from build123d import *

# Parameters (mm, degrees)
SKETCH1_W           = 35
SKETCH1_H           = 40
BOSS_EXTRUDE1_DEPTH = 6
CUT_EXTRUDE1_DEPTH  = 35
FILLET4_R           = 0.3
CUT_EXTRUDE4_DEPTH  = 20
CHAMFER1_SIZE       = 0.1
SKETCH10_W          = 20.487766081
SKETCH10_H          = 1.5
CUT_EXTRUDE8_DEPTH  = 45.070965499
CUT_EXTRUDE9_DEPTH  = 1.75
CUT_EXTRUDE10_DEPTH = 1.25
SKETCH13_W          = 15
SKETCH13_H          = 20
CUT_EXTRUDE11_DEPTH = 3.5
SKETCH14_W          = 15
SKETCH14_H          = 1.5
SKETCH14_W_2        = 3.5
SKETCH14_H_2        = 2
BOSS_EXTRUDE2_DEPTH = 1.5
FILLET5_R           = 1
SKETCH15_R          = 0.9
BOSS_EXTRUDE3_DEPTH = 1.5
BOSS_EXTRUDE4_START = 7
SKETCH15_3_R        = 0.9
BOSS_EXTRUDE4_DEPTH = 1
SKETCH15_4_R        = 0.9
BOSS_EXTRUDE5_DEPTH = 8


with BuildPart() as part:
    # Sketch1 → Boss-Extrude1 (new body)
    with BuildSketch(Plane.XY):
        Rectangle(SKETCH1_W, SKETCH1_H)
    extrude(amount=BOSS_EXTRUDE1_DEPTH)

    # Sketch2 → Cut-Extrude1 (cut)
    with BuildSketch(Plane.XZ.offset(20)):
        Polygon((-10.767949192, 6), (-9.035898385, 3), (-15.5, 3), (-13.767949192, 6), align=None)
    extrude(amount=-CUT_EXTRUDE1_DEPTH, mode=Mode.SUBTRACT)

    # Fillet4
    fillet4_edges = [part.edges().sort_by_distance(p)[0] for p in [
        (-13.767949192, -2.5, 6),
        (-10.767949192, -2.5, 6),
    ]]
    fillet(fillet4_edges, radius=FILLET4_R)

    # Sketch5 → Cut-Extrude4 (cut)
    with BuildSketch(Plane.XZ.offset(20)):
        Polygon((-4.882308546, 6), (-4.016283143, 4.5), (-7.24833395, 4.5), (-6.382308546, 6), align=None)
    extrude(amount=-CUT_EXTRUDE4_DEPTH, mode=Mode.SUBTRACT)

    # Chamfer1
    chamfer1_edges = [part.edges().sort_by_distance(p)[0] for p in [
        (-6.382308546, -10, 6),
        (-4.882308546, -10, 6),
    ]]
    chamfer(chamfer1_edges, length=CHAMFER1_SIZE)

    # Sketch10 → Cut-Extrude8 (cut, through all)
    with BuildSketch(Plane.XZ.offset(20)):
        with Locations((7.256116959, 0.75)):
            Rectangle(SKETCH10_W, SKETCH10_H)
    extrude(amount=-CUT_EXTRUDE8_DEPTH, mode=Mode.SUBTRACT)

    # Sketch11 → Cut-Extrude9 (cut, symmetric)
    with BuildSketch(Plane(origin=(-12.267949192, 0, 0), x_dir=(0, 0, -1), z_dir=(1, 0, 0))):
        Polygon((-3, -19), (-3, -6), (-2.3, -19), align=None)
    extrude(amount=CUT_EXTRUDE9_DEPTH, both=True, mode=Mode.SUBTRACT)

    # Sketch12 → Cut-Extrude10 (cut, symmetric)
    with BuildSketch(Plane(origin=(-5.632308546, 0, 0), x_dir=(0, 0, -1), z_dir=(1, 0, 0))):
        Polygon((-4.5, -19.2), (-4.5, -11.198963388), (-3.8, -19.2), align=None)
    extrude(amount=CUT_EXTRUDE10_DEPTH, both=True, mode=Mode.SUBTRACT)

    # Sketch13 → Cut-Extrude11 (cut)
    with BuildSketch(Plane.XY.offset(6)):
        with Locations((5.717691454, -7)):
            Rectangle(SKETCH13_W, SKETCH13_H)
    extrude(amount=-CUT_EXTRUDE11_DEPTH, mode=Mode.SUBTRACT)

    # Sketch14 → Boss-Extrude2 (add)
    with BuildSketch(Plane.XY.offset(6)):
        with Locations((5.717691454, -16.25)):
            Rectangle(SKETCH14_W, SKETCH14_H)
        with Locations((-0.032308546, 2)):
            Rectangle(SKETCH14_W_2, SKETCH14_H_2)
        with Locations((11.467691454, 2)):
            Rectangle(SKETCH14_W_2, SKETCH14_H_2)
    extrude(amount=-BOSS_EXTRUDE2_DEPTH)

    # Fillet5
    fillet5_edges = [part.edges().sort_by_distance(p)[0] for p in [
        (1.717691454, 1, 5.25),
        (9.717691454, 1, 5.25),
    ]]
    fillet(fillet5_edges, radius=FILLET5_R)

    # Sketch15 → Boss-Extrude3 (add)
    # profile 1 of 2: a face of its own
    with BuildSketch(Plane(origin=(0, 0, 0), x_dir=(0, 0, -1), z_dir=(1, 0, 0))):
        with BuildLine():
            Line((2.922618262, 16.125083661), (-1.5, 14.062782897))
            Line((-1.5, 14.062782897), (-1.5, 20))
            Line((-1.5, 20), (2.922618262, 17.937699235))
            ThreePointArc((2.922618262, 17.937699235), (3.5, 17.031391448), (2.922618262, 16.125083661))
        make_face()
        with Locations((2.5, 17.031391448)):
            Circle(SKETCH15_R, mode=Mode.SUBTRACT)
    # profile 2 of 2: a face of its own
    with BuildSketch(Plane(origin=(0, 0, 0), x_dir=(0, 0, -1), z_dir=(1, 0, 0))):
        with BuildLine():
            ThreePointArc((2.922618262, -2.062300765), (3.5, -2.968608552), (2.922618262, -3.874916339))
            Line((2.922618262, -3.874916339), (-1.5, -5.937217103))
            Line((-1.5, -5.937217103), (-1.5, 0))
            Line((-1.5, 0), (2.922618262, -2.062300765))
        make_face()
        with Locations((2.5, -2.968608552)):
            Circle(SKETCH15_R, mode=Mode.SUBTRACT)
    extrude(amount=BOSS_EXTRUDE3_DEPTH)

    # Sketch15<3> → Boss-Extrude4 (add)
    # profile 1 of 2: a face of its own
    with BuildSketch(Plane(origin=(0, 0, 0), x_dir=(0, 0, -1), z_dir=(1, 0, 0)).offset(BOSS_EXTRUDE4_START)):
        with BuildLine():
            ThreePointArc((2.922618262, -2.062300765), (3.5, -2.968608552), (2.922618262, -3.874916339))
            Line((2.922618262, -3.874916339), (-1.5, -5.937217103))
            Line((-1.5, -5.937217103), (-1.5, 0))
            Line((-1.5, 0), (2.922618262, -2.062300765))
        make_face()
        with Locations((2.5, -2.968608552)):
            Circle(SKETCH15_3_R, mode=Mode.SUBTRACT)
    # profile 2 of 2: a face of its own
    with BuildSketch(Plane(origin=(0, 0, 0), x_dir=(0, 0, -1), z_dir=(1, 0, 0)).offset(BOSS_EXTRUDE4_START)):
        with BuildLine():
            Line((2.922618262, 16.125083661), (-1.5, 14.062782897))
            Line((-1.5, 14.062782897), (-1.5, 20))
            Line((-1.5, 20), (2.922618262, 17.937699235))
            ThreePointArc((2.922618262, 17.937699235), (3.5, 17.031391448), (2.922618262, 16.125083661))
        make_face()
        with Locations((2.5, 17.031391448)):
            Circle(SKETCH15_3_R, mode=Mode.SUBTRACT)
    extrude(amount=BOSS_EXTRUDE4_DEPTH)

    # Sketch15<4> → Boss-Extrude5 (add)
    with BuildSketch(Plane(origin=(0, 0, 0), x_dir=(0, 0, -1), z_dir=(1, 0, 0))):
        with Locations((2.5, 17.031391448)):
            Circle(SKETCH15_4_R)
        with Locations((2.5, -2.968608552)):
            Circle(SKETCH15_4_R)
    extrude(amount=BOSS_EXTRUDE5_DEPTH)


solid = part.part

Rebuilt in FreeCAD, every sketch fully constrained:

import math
import FreeCAD as App
import Part
import Sketcher

V = App.Vector
Q = App.Units.Quantity


def edges_at(feature, points):
    """Names of the edges that pass closest to the given points."""
    edges = feature.Shape.Edges
    near = lambda p: min(range(len(edges)), key=lambda i: edges[i].distToShape(Part.Vertex(*p))[0])
    return sorted({f"Edge{near(p) + 1}" for p in points})


def add_polygon(sketch, points):
    """Adds a closed chain of lines whose ends are joined by coincident constraints."""
    first, n = sketch.GeometryCount, len(points)
    for a, b in zip(points, points[1:] + points[:1]):
        sketch.addGeometry(Part.LineSegment(App.Vector(*a, 0), App.Vector(*b, 0)), False)
    for i in range(n):
        sketch.addConstraint(Sketcher.Constraint("Coincident", first + i, 2, first + (i + 1) % n, 1))

doc = App.newDocument("Part")
body = doc.addObject("PartDesign::Body", "Body")

sketch1 = doc.addObject("Sketcher::SketchObject", "Sketch")
body.addObject(sketch1)
sketch1.AttachmentSupport = (doc.XY_Plane, [""])
sketch1.MapMode = "FlatFace"
add_polygon(sketch1, [(-18, 20), (-18, -20), (18, -20), (18, 20)])
sketch1.addConstraint(Sketcher.Constraint("Vertical", 0))
sketch1.addConstraint(Sketcher.Constraint("Horizontal", 1))
sketch1.addConstraint(Sketcher.Constraint("Vertical", 2))
sketch1.addConstraint(Sketcher.Constraint("Horizontal", 3))
sketch1.addConstraint(Sketcher.Constraint("Symmetric", 0, 2, 2, 2, -1, 1))
sketch1.addConstraint(Sketcher.Constraint("DistanceX", 1, 1, 1, 2, Q("35 mm")))
sketch1.addConstraint(Sketcher.Constraint("DistanceY", 0, 2, 0, 1, Q("40 mm")))
pad1 = doc.addObject("PartDesign::Pad", "Pad")
body.addObject(pad1)
pad1.Profile = sketch1
pad1.Length = 6

sketch2 = doc.addObject("Sketcher::SketchObject", "Sketch001")
body.addObject(sketch2)
sketch2.AttachmentSupport = (doc.XZ_Plane, [""])
sketch2.MapMode = "FlatFace"
sketch2.AttachmentOffset = App.Placement(V(0, 0, 20), App.Rotation())
add_polygon(sketch2, [(-9, 3), (-10.8, 6), (-13.8, 6), (-15.5, 3)])
sketch2.addConstraint(Sketcher.Constraint("Horizontal", 1))
sketch2.addConstraint(Sketcher.Constraint("Horizontal", 3))
sketch2.addConstraint(Sketcher.Constraint("Equal", 0, 2))
sketch2.addConstraint(Sketcher.Constraint("DistanceX", 1, 2, 1, 1, Q("3 mm")))
sketch2.addConstraint(Sketcher.Constraint("Angle", 0, Q("120 deg")))
sketch2.addConstraint(Sketcher.Constraint("DistanceY", -1, 1, 0, 2, Q("6 mm")))
sketch2.addConstraint(Sketcher.Constraint("DistanceY", -1, 1, 2, 2, Q("3 mm")))
sketch2.addConstraint(Sketcher.Constraint("DistanceX", 2, 2, -1, 1, Q("15.5 mm")))
pocket1 = doc.addObject("PartDesign::Pocket", "Pocket")
body.addObject(pocket1)
pocket1.Profile = sketch2
pocket1.Length = 35
doc.recompute()

fillet = doc.addObject("PartDesign::Fillet", "Fillet")
body.addObject(fillet)
fillet.Base = (pocket1, edges_at(pocket1, [(-13.768, -2.5, 6), (-10.768, -2.5, 6)]))
fillet.Radius = 0.3

sketch3 = doc.addObject("Sketcher::SketchObject", "Sketch002")
body.addObject(sketch3)
sketch3.AttachmentSupport = (doc.XZ_Plane, [""])
sketch3.MapMode = "FlatFace"
sketch3.AttachmentOffset = App.Placement(V(0, 0, 20), App.Rotation())
add_polygon(sketch3, [(-4, 4.5), (-4.9, 6), (-6.4, 6), (-7.2, 4.5)])
sketch3.addConstraint(Sketcher.Constraint("Horizontal", 1))
sketch3.addConstraint(Sketcher.Constraint("Horizontal", 3))
sketch3.addConstraint(Sketcher.Constraint("Equal", 0, 2))
sketch3.addConstraint(Sketcher.Constraint("Angle", 0, Q("120 deg")))
sketch3.addConstraint(Sketcher.Constraint("DistanceX", 1, 2, 1, 1, Q("1.5 mm")))
sketch3.addConstraint(Sketcher.Constraint("DistanceY", -1, 1, 0, 2, Q("6 mm")))
sketch3.addConstraint(Sketcher.Constraint("DistanceY", -1, 1, 2, 2, Q("4.5 mm")))
sketch3.addConstraint(Sketcher.Constraint("DistanceX", 0, 2, -1, 1, Q("4.882309 mm")))
pocket2 = doc.addObject("PartDesign::Pocket", "Pocket001")
body.addObject(pocket2)
pocket2.Profile = sketch3
pocket2.Length = 20
doc.recompute()

chamfer = doc.addObject("PartDesign::Chamfer", "Chamfer")
body.addObject(chamfer)
chamfer.Base = (pocket2, edges_at(pocket2, [(-6.382, -10, 6), (-4.882, -10, 6)]))
chamfer.Size = 0.1

sketch4 = doc.addObject("Sketcher::SketchObject", "Sketch003")
body.addObject(sketch4)
sketch4.AttachmentSupport = (doc.XZ_Plane, [""])
sketch4.MapMode = "FlatFace"
sketch4.AttachmentOffset = App.Placement(V(0, 0, 20), App.Rotation())
add_polygon(sketch4, [(-3, 1.5), (-3, 0), (17.5, 0), (17.5, 1.5)])
sketch4.addConstraint(Sketcher.Constraint("Vertical", 0))
sketch4.addConstraint(Sketcher.Constraint("Horizontal", 1))
sketch4.addConstraint(Sketcher.Constraint("Vertical", 2))
sketch4.addConstraint(Sketcher.Constraint("Horizontal", 3))
sketch4.addConstraint(Sketcher.Constraint("PointOnObject", 0, 2, -1))
sketch4.addConstraint(Sketcher.Constraint("DistanceY", 0, 2, 0, 1, Q("1.5 mm")))
sketch4.addConstraint(Sketcher.Constraint("DistanceX", -1, 1, 1, 2, Q("17.5 mm")))
sketch4.addConstraint(Sketcher.Constraint("DistanceX", 1, 1, 1, 2, Q("20.487766 mm")))
pocket3 = doc.addObject("PartDesign::Pocket", "Pocket002")
body.addObject(pocket3)
pocket3.Profile = sketch4
pocket3.Type = "ThroughAll"

sketch5 = doc.addObject("Sketcher::SketchObject", "Sketch004")
body.addObject(sketch5)
sketch5.AttachmentSupport = (doc.YZ_Plane, [""])
sketch5.MapMode = "FlatFace"
sketch5.AttachmentOffset = App.Placement(V(0, 0, -12.267949), App.Rotation())
add_polygon(sketch5, [(-6, 3), (-19, 3), (-19, 2.3)])
sketch5.addConstraint(Sketcher.Constraint("Horizontal", 0))
sketch5.addConstraint(Sketcher.Constraint("Vertical", 1))
sketch5.addConstraint(Sketcher.Constraint("DistanceX", 0, 2, 0, 1, Q("13 mm")))
sketch5.addConstraint(Sketcher.Constraint("DistanceY", 1, 2, 1, 1, Q("0.7 mm")))
sketch5.addConstraint(Sketcher.Constraint("DistanceX", 0, 2, -1, 1, Q("19 mm")))
sketch5.addConstraint(Sketcher.Constraint("DistanceY", -1, 1, 0, 2, Q("3 mm")))
pocket4 = doc.addObject("PartDesign::Pocket", "Pocket003")
body.addObject(pocket4)
pocket4.Profile = sketch5
pocket4.Length = 3.5
pocket4.Midplane = True

sketch6 = doc.addObject("Sketcher::SketchObject", "Sketch005")
body.addObject(sketch6)
sketch6.AttachmentSupport = (doc.YZ_Plane, [""])
sketch6.MapMode = "FlatFace"
sketch6.AttachmentOffset = App.Placement(V(0, 0, -5.632309), App.Rotation())
add_polygon(sketch6, [(-11.2, 4.5), (-19.2, 4.5), (-19.2, 3.8)])
sketch6.addConstraint(Sketcher.Constraint("Horizontal", 0))
sketch6.addConstraint(Sketcher.Constraint("Vertical", 1))
sketch6.addConstraint(Sketcher.Constraint("Angle", 2, Q("5 deg")))
sketch6.addConstraint(Sketcher.Constraint("DistanceY", 1, 2, 1, 1, Q("0.7 mm")))
sketch6.addConstraint(Sketcher.Constraint("DistanceX", 0, 2, -1, 1, Q("19.2 mm")))
sketch6.addConstraint(Sketcher.Constraint("DistanceY", -1, 1, 0, 2, Q("4.5 mm")))
pocket5 = doc.addObject("PartDesign::Pocket", "Pocket004")
body.addObject(pocket5)
pocket5.Profile = sketch6
pocket5.Length = 2.5
pocket5.Midplane = True

sketch7 = doc.addObject("Sketcher::SketchObject", "Sketch006")
body.addObject(sketch7)
sketch7.AttachmentSupport = (doc.XY_Plane, [""])
sketch7.MapMode = "FlatFace"
sketch7.AttachmentOffset = App.Placement(V(0, 0, 6), App.Rotation())
add_polygon(sketch7, [(-2, 3), (-2, -17), (13, -17), (13, 3)])
sketch7.addConstraint(Sketcher.Constraint("Vertical", 0))
sketch7.addConstraint(Sketcher.Constraint("Horizontal", 1))
sketch7.addConstraint(Sketcher.Constraint("Vertical", 2))
sketch7.addConstraint(Sketcher.Constraint("Horizontal", 3))
sketch7.addConstraint(Sketcher.Constraint("DistanceX", 1, 1, 1, 2, Q("15 mm")))
sketch7.addConstraint(Sketcher.Constraint("DistanceY", 0, 2, 0, 1, Q("20 mm")))
sketch7.addConstraint(Sketcher.Constraint("DistanceY", 0, 2, -1, 1, Q("17 mm")))
sketch7.addConstraint(Sketcher.Constraint("DistanceX", 0, 2, -1, 1, Q("1.782309 mm")))
pocket6 = doc.addObject("PartDesign::Pocket", "Pocket005")
body.addObject(pocket6)
pocket6.Profile = sketch7
pocket6.Length = 3.5

sketch8 = doc.addObject("Sketcher::SketchObject", "Sketch007")
body.addObject(sketch8)
sketch8.AttachmentSupport = (doc.XY_Plane, [""])
sketch8.MapMode = "FlatFace"
sketch8.AttachmentOffset = App.Placement(V(0, 0, 6), App.Rotation())
add_polygon(sketch8, [(-1.8, -15.5), (-1.8, -17), (13.2, -17), (13.2, -15.5)])
add_polygon(sketch8, [(-1.8, 3), (-1.8, 1), (1.7, 1), (1.7, 3)])
add_polygon(sketch8, [(9.7, 3), (9.7, 1), (13.2, 1), (13.2, 3)])
sketch8.addConstraint(Sketcher.Constraint("Vertical", 0))
sketch8.addConstraint(Sketcher.Constraint("Horizontal", 1))
sketch8.addConstraint(Sketcher.Constraint("Vertical", 2))
sketch8.addConstraint(Sketcher.Constraint("Horizontal", 3))
sketch8.addConstraint(Sketcher.Constraint("Vertical", 4))
sketch8.addConstraint(Sketcher.Constraint("Horizontal", 5))
sketch8.addConstraint(Sketcher.Constraint("Vertical", 6))
sketch8.addConstraint(Sketcher.Constraint("Horizontal", 7))
sketch8.addConstraint(Sketcher.Constraint("Vertical", 8))
sketch8.addConstraint(Sketcher.Constraint("Horizontal", 9))
sketch8.addConstraint(Sketcher.Constraint("Vertical", 10))
sketch8.addConstraint(Sketcher.Constraint("Horizontal", 11))
sketch8.addConstraint(Sketcher.Constraint("Horizontal", 5, 2, 8, 2))
sketch8.addConstraint(Sketcher.Constraint("Horizontal", 7, 2, 10, 2))
sketch8.addConstraint(Sketcher.Constraint("Vertical", 3, 2, 4, 2))
sketch8.addConstraint(Sketcher.Constraint("Vertical", 2, 2, 9, 2))
sketch8.addConstraint(Sketcher.Constraint("Equal", 7, 9))
sketch8.addConstraint(Sketcher.Constraint("DistanceX", 1, 1, 1, 2, Q("15 mm")))
sketch8.addConstraint(Sketcher.Constraint("DistanceY", 4, 2, 4, 1, Q("2 mm")))
sketch8.addConstraint(Sketcher.Constraint("DistanceX", 5, 1, 5, 2, Q("3.5 mm")))
sketch8.addConstraint(Sketcher.Constraint("DistanceY", 0, 2, 0, 1, Q("1.5 mm")))
sketch8.addConstraint(Sketcher.Constraint("DistanceY", 0, 2, -1, 1, Q("17 mm")))
sketch8.addConstraint(Sketcher.Constraint("DistanceY", -1, 1, 4, 2, Q("1 mm")))
sketch8.addConstraint(Sketcher.Constraint("DistanceX", 0, 2, -1, 1, Q("1.782309 mm")))
pad2 = doc.addObject("PartDesign::Pad", "Pad001")
body.addObject(pad2)
pad2.Profile = sketch8
pad2.Length = 1.5
pad2.Reversed = True
doc.recompute()

fillet2 = doc.addObject("PartDesign::Fillet", "Fillet001")
body.addObject(fillet2)
fillet2.Base = (pad2, edges_at(pad2, [(1.718, 1, 5.25), (9.718, 1, 5.25)]))
fillet2.Radius = 1

sketch9 = doc.addObject("Sketcher::SketchObject", "Sketch008")
body.addObject(sketch9)
sketch9.AttachmentSupport = (doc.YZ_Plane, [""])
sketch9.MapMode = "FlatFace"
sketch9.addGeometry(Part.LineSegment(V(14.1, 1.5, 0), V(16.1, -2.9, 0)), False)
sketch9.addGeometry(Part.ArcOfCircle(Part.Circle(V(17, -2.5, 0), V(0, 0, 1), 1), math.radians(-155), math.radians(-25)), False)
sketch9.addGeometry(Part.LineSegment(V(17.9, -2.9, 0), V(20, 1.5, 0)), False)
sketch9.addGeometry(Part.LineSegment(V(20, 1.5, 0), V(14.1, 1.5, 0)), False)
sketch9.addGeometry(Part.Circle(V(17, -2.5, 0), V(0, 0, 1), 0.9), False)
sketch9.addGeometry(Part.ArcOfCircle(Part.Circle(V(-3, -2.5, 0), V(0, 0, 1), 1), math.radians(-155), math.radians(-25)), False)
sketch9.addGeometry(Part.LineSegment(V(-2.1, -2.9, 0), V(0, 1.5, 0)), False)
sketch9.addGeometry(Part.LineSegment(V(0, 1.5, 0), V(-5.9, 1.5, 0)), False)
sketch9.addGeometry(Part.LineSegment(V(-5.9, 1.5, 0), V(-3.9, -2.9, 0)), False)
sketch9.addGeometry(Part.Circle(V(-3, -2.5, 0), V(0, 0, 1), 0.9), False)
sketch9.addConstraint(Sketcher.Constraint("Tangent", 0, 2, 1, 1))
sketch9.addConstraint(Sketcher.Constraint("Tangent", 1, 2, 2, 1))
sketch9.addConstraint(Sketcher.Constraint("Coincident", 2, 2, 3, 1))
sketch9.addConstraint(Sketcher.Constraint("Coincident", 3, 2, 0, 1))
sketch9.addConstraint(Sketcher.Constraint("Tangent", 5, 2, 6, 1))
sketch9.addConstraint(Sketcher.Constraint("Coincident", 6, 2, 7, 1))
sketch9.addConstraint(Sketcher.Constraint("Coincident", 7, 2, 8, 1))
sketch9.addConstraint(Sketcher.Constraint("Tangent", 8, 2, 5, 1))
sketch9.addConstraint(Sketcher.Constraint("Horizontal", 3))
sketch9.addConstraint(Sketcher.Constraint("Horizontal", 7))
sketch9.addConstraint(Sketcher.Constraint("Coincident", 4, 3, 1, 3))
sketch9.addConstraint(Sketcher.Constraint("Coincident", 9, 3, 5, 3))
sketch9.addConstraint(Sketcher.Constraint("Equal", 1, 5))
sketch9.addConstraint(Sketcher.Constraint("Equal", 4, 9))
sketch9.addConstraint(Sketcher.Constraint("PointOnObject", 6, 2, -2))
sketch9.addConstraint(Sketcher.Constraint("Parallel", 2, 6))
sketch9.addConstraint(Sketcher.Constraint("Parallel", 0, 8))
sketch9.addConstraint(Sketcher.Constraint("Horizontal", 4, 3, 5, 3))
sketch9.addConstraint(Sketcher.Constraint("Horizontal", 0, 2, 1, 2))
sketch9.addConstraint(Sketcher.Constraint("Horizontal", 3, 2, 6, 2))
sketch9.addConstraint(Sketcher.Constraint("Radius", 1, Q("1 mm")))
sketch9.addConstraint(Sketcher.Constraint("Diameter", 4, Q("1.8 mm")))
sketch9.addConstraint(Sketcher.Constraint("Angle", 0, Q("-65 deg")))
sketch9.addConstraint(Sketcher.Constraint("DistanceX", -1, 1, 2, 2, Q("20 mm")))
sketch9.addConstraint(Sketcher.Constraint("DistanceY", 1, 3, 2, 2, Q("4 mm")))
sketch9.addConstraint(Sketcher.Constraint("DistanceY", 1, 3, -1, 1, Q("2.5 mm")))
pad3 = doc.addObject("PartDesign::Pad", "Pad002")
body.addObject(pad3)
pad3.Profile = sketch9
pad3.Length = 1.5

sketch10 = doc.addObject("Sketcher::SketchObject", "Sketch009")
body.addObject(sketch10)
sketch10.AttachmentSupport = (doc.YZ_Plane, [""])
sketch10.MapMode = "FlatFace"
sketch10.AttachmentOffset = App.Placement(V(0, 0, 7), App.Rotation())
sketch10.addGeometry(Part.ArcOfCircle(Part.Circle(V(-3, -2.5, 0), V(0, 0, 1), 1), math.radians(-155), math.radians(-25)), False)
sketch10.addGeometry(Part.LineSegment(V(-2.1, -2.9, 0), V(0, 1.5, 0)), False)
sketch10.addGeometry(Part.LineSegment(V(0, 1.5, 0), V(-5.9, 1.5, 0)), False)
sketch10.addGeometry(Part.LineSegment(V(-5.9, 1.5, 0), V(-3.9, -2.9, 0)), False)
sketch10.addGeometry(Part.Circle(V(-3, -2.5, 0), V(0, 0, 1), 0.9), False)
sketch10.addGeometry(Part.LineSegment(V(14.1, 1.5, 0), V(16.1, -2.9, 0)), False)
sketch10.addGeometry(Part.ArcOfCircle(Part.Circle(V(17, -2.5, 0), V(0, 0, 1), 1), math.radians(-155), math.radians(-25)), False)
sketch10.addGeometry(Part.LineSegment(V(17.9, -2.9, 0), V(20, 1.5, 0)), False)
sketch10.addGeometry(Part.LineSegment(V(20, 1.5, 0), V(14.1, 1.5, 0)), False)
sketch10.addGeometry(Part.Circle(V(17, -2.5, 0), V(0, 0, 1), 0.9), False)
sketch10.addConstraint(Sketcher.Constraint("Tangent", 0, 2, 1, 1))
sketch10.addConstraint(Sketcher.Constraint("Coincident", 1, 2, 2, 1))
sketch10.addConstraint(Sketcher.Constraint("Coincident", 2, 2, 3, 1))
sketch10.addConstraint(Sketcher.Constraint("Tangent", 3, 2, 0, 1))
sketch10.addConstraint(Sketcher.Constraint("Tangent", 5, 2, 6, 1))
sketch10.addConstraint(Sketcher.Constraint("Tangent", 6, 2, 7, 1))
sketch10.addConstraint(Sketcher.Constraint("Coincident", 7, 2, 8, 1))
sketch10.addConstraint(Sketcher.Constraint("Coincident", 8, 2, 5, 1))
sketch10.addConstraint(Sketcher.Constraint("Horizontal", 2))
sketch10.addConstraint(Sketcher.Constraint("Horizontal", 8))
sketch10.addConstraint(Sketcher.Constraint("Coincident", 4, 3, 0, 3))
sketch10.addConstraint(Sketcher.Constraint("Coincident", 9, 3, 6, 3))
sketch10.addConstraint(Sketcher.Constraint("Equal", 0, 6))
sketch10.addConstraint(Sketcher.Constraint("Equal", 4, 9))
sketch10.addConstraint(Sketcher.Constraint("PointOnObject", 1, 2, -2))
sketch10.addConstraint(Sketcher.Constraint("Parallel", 3, 5))
sketch10.addConstraint(Sketcher.Constraint("Parallel", 1, 7))
sketch10.addConstraint(Sketcher.Constraint("Horizontal", 4, 3, 6, 3))
sketch10.addConstraint(Sketcher.Constraint("Horizontal", 0, 2, 3, 2))
sketch10.addConstraint(Sketcher.Constraint("Horizontal", 2, 2, 7, 2))
sketch10.addConstraint(Sketcher.Constraint("Radius", 0, Q("1 mm")))
sketch10.addConstraint(Sketcher.Constraint("Diameter", 4, Q("1.8 mm")))
sketch10.addConstraint(Sketcher.Constraint("Angle", 1, Q("65 deg")))
sketch10.addConstraint(Sketcher.Constraint("DistanceX", -1, 1, 7, 2, Q("20 mm")))
sketch10.addConstraint(Sketcher.Constraint("DistanceY", 0, 3, 1, 2, Q("4 mm")))
sketch10.addConstraint(Sketcher.Constraint("DistanceY", 0, 3, -1, 1, Q("2.5 mm")))
pad4 = doc.addObject("PartDesign::Pad", "Pad003")
body.addObject(pad4)
pad4.Profile = sketch10
pad4.Length = 1

sketch11 = doc.addObject("Sketcher::SketchObject", "Sketch010")
body.addObject(sketch11)
sketch11.AttachmentSupport = (doc.YZ_Plane, [""])
sketch11.MapMode = "FlatFace"
sketch11.addGeometry(Part.Circle(V(17, -2.5, 0), V(0, 0, 1), 0.9), False)
sketch11.addGeometry(Part.Circle(V(-3, -2.5, 0), V(0, 0, 1), 0.9), False)
sketch11.addConstraint(Sketcher.Constraint("Equal", 0, 1))
sketch11.addConstraint(Sketcher.Constraint("Horizontal", 0, 3, 1, 3))
sketch11.addConstraint(Sketcher.Constraint("Diameter", 0, Q("1.8 mm")))
sketch11.addConstraint(Sketcher.Constraint("DistanceX", 1, 3, 0, 3, Q("20 mm")))
sketch11.addConstraint(Sketcher.Constraint("DistanceY", 0, 3, -1, 1, Q("2.5 mm")))
sketch11.addConstraint(Sketcher.Constraint("DistanceX", -1, 1, 0, 3, Q("17.031391 mm")))
pad5 = doc.addObject("PartDesign::Pad", "Pad004")
body.addObject(pad5)
pad5.Profile = sketch11
pad5.Length = 8

doc.recompute()
